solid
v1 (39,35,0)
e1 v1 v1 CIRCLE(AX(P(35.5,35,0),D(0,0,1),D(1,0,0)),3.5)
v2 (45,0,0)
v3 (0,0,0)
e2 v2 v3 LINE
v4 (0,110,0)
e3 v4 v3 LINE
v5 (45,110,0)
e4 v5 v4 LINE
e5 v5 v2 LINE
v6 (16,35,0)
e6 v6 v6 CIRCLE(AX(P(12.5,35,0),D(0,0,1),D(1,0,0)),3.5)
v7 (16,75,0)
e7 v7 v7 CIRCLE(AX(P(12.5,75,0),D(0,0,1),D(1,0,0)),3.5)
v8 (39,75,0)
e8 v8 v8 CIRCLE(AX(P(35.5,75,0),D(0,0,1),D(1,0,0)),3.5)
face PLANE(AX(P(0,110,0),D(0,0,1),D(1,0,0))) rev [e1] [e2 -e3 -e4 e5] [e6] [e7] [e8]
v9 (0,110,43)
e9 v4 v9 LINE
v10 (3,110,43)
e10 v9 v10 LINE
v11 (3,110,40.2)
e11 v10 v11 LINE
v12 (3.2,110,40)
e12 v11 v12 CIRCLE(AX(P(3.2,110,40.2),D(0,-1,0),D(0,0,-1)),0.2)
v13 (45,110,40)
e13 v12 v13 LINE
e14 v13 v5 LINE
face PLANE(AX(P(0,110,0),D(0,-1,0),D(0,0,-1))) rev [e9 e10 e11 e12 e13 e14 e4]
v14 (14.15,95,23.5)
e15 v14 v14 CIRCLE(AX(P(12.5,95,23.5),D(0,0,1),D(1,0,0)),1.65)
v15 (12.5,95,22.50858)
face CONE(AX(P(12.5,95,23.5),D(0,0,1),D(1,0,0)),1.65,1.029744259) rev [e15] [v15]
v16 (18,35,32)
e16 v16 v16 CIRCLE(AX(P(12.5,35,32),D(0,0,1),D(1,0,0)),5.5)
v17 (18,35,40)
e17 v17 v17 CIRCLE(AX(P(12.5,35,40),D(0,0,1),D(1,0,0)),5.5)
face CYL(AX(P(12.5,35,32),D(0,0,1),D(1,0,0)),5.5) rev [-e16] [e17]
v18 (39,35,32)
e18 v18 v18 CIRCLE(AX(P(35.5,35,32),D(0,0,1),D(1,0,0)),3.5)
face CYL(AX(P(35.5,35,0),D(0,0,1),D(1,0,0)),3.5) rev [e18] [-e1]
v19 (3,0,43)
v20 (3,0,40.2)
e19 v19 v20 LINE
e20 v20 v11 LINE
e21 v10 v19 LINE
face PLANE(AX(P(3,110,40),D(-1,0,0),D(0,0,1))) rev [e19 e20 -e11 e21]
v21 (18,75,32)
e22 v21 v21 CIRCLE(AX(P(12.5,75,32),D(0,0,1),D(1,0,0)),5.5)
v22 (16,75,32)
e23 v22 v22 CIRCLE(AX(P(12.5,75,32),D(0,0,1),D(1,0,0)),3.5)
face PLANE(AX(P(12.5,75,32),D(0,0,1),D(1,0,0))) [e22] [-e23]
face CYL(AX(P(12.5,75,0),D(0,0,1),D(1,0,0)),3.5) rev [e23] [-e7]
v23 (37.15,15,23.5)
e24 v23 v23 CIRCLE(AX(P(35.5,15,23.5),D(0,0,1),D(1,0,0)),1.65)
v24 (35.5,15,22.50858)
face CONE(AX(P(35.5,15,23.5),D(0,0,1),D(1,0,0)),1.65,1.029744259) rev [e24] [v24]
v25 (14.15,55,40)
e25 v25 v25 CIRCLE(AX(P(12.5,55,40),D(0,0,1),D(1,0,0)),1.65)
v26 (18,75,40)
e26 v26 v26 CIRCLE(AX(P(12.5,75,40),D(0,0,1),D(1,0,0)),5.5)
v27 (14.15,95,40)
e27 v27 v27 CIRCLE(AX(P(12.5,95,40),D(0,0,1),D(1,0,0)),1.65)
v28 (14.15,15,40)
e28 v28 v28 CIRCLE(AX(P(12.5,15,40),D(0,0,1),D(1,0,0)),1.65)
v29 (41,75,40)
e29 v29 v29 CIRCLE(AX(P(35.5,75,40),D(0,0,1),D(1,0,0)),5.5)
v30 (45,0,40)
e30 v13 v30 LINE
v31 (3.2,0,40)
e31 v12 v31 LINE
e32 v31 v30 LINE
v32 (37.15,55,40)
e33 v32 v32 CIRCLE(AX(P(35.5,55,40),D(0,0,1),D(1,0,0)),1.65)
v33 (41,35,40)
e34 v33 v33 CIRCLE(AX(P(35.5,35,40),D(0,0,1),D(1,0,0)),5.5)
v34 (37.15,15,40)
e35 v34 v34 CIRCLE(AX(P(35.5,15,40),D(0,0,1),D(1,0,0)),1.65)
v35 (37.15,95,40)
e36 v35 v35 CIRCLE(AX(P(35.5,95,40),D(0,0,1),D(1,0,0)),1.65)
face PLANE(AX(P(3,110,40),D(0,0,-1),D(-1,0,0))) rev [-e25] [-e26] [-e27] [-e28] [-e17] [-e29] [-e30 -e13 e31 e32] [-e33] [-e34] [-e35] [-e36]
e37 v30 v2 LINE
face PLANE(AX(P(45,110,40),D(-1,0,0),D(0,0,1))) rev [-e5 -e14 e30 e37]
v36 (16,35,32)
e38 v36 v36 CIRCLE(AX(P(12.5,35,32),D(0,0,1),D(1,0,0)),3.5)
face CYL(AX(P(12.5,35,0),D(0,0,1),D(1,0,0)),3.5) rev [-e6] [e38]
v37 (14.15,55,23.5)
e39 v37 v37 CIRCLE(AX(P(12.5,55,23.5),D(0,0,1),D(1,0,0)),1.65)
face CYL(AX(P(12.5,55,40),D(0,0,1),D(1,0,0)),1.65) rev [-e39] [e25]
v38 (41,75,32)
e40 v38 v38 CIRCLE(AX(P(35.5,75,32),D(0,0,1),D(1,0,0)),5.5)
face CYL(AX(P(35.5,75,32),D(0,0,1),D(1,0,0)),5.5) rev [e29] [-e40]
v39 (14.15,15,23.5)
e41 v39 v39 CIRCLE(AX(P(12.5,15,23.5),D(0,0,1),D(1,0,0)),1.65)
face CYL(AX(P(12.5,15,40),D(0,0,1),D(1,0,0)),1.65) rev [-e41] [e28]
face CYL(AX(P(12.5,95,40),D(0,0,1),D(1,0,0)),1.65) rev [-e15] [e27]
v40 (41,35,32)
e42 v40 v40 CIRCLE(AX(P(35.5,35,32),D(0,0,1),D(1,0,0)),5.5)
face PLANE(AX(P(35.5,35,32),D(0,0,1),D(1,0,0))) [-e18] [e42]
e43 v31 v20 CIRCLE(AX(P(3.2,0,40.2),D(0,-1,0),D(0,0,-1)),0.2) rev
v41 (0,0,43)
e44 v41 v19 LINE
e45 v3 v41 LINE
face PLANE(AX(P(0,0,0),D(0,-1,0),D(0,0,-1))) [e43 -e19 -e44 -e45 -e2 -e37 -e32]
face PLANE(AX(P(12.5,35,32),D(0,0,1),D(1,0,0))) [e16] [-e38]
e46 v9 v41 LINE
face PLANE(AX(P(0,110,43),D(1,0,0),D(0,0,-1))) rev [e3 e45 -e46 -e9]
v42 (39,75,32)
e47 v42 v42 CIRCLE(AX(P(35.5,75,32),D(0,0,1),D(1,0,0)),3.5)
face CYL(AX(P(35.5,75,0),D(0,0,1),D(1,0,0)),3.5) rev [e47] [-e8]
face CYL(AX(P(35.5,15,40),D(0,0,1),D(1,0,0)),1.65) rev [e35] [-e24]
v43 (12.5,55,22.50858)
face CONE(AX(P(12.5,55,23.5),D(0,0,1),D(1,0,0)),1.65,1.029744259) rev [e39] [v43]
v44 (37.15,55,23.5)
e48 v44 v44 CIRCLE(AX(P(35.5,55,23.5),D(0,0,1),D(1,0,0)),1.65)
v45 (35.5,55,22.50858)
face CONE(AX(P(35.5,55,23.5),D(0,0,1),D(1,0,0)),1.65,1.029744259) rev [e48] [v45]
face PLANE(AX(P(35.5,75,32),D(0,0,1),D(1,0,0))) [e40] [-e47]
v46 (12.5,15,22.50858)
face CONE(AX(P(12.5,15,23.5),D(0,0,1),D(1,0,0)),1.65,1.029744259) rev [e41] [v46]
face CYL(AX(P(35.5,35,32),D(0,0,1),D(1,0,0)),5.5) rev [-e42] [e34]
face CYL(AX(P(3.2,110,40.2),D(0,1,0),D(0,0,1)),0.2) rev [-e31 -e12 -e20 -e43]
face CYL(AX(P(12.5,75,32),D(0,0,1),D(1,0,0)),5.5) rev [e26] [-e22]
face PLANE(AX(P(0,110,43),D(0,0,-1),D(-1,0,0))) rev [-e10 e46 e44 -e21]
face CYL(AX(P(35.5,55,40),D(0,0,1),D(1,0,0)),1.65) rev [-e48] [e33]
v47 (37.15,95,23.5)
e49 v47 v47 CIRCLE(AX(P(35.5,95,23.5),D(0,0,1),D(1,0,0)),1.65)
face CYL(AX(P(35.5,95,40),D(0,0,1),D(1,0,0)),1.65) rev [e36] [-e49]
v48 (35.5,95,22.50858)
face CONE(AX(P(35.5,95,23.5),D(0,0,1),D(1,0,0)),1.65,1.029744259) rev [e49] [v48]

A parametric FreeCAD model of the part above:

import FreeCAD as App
import Part
import Sketcher

V = App.Vector


def edges_at(feature, points):
    """Names of the edges that pass closest to the given points."""
    edges = feature.Shape.Edges
    near = lambda p: min(range(len(edges)), key=lambda i: edges[i].distToShape(Part.Vertex(*p))[0])
    return sorted({f"Edge{near(p) + 1}" for p in points})

doc = App.newDocument("Part")
params = doc.addObject("Spreadsheet::Sheet", "Params")
for row, (alias, value) in enumerate([
    ("sketch1_width", "3 mm"),
    ("sketch1_width2", "42 mm"),
    ("sketch1_height", "43 mm"),
    ("pad1_length", "110 mm"),
    ("fillet_radius", "0.2 mm"),
    ("sketch2_diameter", "11 mm"),
    ("pocket1_length", "8 mm"),
    ("sketch3_diameter", "7 mm"),
    ("sketch4_diameter", "3.3 mm"),
    ("hole_diameter", "3.3 mm"),
    ("hole_depth", "16.5 mm"),
], start=1):
    params.set(f"A{row}", alias)
    params.set(f"B{row}", "=" + value)
    params.setAlias(f"B{row}", alias)

body = doc.addObject("PartDesign::Body", "Body")

# Sketch on XZ plane
sketch1 = body.newObject("Sketcher::SketchObject", "Sketch")
sketch1.AttachmentSupport = (doc.getObject("XZ_Plane"), [""])
sketch1.MapMode = "FlatFace"
sketch1.addGeometry(Part.LineSegment(V(0, 0, 0), V(0, 43, 0)), False)
sketch1.addGeometry(Part.LineSegment(V(0, 43, 0), V(3, 43, 0)), False)
sketch1.addGeometry(Part.LineSegment(V(3, 43, 0), V(3, 40, 0)), False)
sketch1.addGeometry(Part.LineSegment(V(3, 40, 0), V(45, 40, 0)), False)
sketch1.addGeometry(Part.LineSegment(V(45, 40, 0), V(45, 0, 0)), False)
sketch1.addGeometry(Part.LineSegment(V(45, 0, 0), V(0, 0, 0)), False)
sketch1.addConstraint(Sketcher.Constraint("Coincident", 0, 2, 1, 1))
sketch1.addConstraint(Sketcher.Constraint("Coincident", 1, 2, 2, 1))
sketch1.addConstraint(Sketcher.Constraint("Coincident", 2, 2, 3, 1))
sketch1.addConstraint(Sketcher.Constraint("Coincident", 3, 2, 4, 1))
sketch1.addConstraint(Sketcher.Constraint("Coincident", 4, 2, 5, 1))
sketch1.addConstraint(Sketcher.Constraint("Coincident", 5, 2, 0, 1))
sketch1.addConstraint(Sketcher.Constraint("Vertical", 0))
sketch1.addConstraint(Sketcher.Constraint("Horizontal", 1))
sketch1.addConstraint(Sketcher.Constraint("Vertical", 2))
sketch1.addConstraint(Sketcher.Constraint("Horizontal", 3))
sketch1.addConstraint(Sketcher.Constraint("Vertical", 4))
sketch1.addConstraint(Sketcher.Constraint("Horizontal", 5))
sketch1.addConstraint(Sketcher.Constraint("Coincident", 5, 2, -1, 1))
sketch1.addConstraint(Sketcher.Constraint("Equal", 1, 2))
sketch1.addConstraint(Sketcher.Constraint("DistanceX", 1, 1, 1, 2, 3.0))
sketch1.addConstraint(Sketcher.Constraint("DistanceX", 3, 1, 3, 2, 42.0))
sketch1.addConstraint(Sketcher.Constraint("DistanceY", 0, 1, 0, 2, 43.0))
sketch1.setExpression("Constraints[14]", "Params.sketch1_width")
sketch1.setExpression("Constraints[15]", "Params.sketch1_width2")
sketch1.setExpression("Constraints[16]", "Params.sketch1_height")
pad1 = body.newObject("PartDesign::Pad", "Pad")
pad1.Profile = sketch1
pad1.setExpression("Length", "Params.pad1_length")
pad1.Reversed = True
doc.recompute()

fillet = body.newObject("PartDesign::Fillet", "Fillet")
fillet.Base = (pad1, edges_at(pad1, [(3, 55, 40)]))
fillet.setExpression("Radius", "Params.fillet_radius")

# Sketch on XY plane
sketch2 = body.newObject("Sketcher::SketchObject", "Sketch001")
sketch2.AttachmentSupport = (doc.getObject("XY_Plane"), [""])
sketch2.MapMode = "FlatFace"
sketch2.AttachmentOffset = App.Placement(V(0, 0, 40), App.Rotation())
sketch2.addGeometry(Part.Circle(V(12.5, 75, 0), V(0, 0, 1), 5.5), False)
sketch2.addGeometry(Part.Circle(V(35.5, 75, 0), V(0, 0, 1), 5.5), False)
sketch2.addGeometry(Part.Circle(V(12.5, 35, 0), V(0, 0, 1), 5.5), False)
sketch2.addGeometry(Part.Circle(V(35.5, 35, 0), V(0, 0, 1), 5.5), False)
sketch2.addConstraint(Sketcher.Constraint("Equal", 0, 1))
sketch2.addConstraint(Sketcher.Constraint("Equal", 1, 2))
sketch2.addConstraint(Sketcher.Constraint("Equal", 2, 3))
sketch2.addConstraint(Sketcher.Constraint("Horizontal", 0, 3, 1, 3))
sketch2.addConstraint(Sketcher.Constraint("Horizontal", 2, 3, 3, 3))
sketch2.addConstraint(Sketcher.Constraint("Vertical", 0, 3, 2, 3))
sketch2.addConstraint(Sketcher.Constraint("Vertical", 1, 3, 3, 3))
sketch2.addConstraint(Sketcher.Constraint("Diameter", 0, 11.0))
sketch2.addConstraint(Sketcher.Constraint("DistanceY", -1, 1, 0, 3, 75.0))
sketch2.addConstraint(Sketcher.Constraint("DistanceY", -1, 1, 2, 3, 35.0))
sketch2.addConstraint(Sketcher.Constraint("DistanceX", 0, 3, 1, 3, 23.0))
sketch2.addConstraint(Sketcher.Constraint("DistanceX", -1, 1, 0, 3, 12.5))
sketch2.setExpression("Constraints[7]", "Params.sketch2_diameter")
pocket1 = body.newObject("PartDesign::Pocket", "Pocket")
pocket1.Profile = sketch2
pocket1.setExpression("Length", "Params.pocket1_length")

# Sketch on XY plane
sketch3 = body.newObject("Sketcher::SketchObject", "Sketch002")
sketch3.AttachmentSupport = (doc.getObject("XY_Plane"), [""])
sketch3.MapMode = "FlatFace"
sketch3.AttachmentOffset = App.Placement(V(0, 0, 32), App.Rotation())
sketch3.addGeometry(Part.Circle(V(12.5, 75, 0), V(0, 0, 1), 3.5), False)
sketch3.addGeometry(Part.Circle(V(35.5, 75, 0), V(0, 0, 1), 3.5), False)
sketch3.addGeometry(Part.Circle(V(35.5, 35, 0), V(0, 0, 1), 3.5), False)
sketch3.addGeometry(Part.Circle(V(12.5, 35, 0), V(0, 0, 1), 3.5), False)
sketch3.addConstraint(Sketcher.Constraint("Equal", 0, 1))
sketch3.addConstraint(Sketcher.Constraint("Equal", 1, 2))
sketch3.addConstraint(Sketcher.Constraint("Equal", 2, 3))
sketch3.addConstraint(Sketcher.Constraint("Horizontal", 0, 3, 1, 3))
sketch3.addConstraint(Sketcher.Constraint("Horizontal", 2, 3, 3, 3))
sketch3.addConstraint(Sketcher.Constraint("Vertical", 1, 3, 2, 3))
sketch3.addConstraint(Sketcher.Constraint("Vertical", 0, 3, 3, 3))
sketch3.addConstraint(Sketcher.Constraint("Diameter", 0, 7.0))
sketch3.addConstraint(Sketcher.Constraint("DistanceY", -1, 1, 0, 3, 75.0))
sketch3.addConstraint(Sketcher.Constraint("DistanceY", -1, 1, 2, 3, 35.0))
sketch3.addConstraint(Sketcher.Constraint("DistanceX", 0, 3, 1, 3, 23.0))
sketch3.addConstraint(Sketcher.Constraint("DistanceX", -1, 1, 0, 3, 12.5))
sketch3.setExpression("Constraints[7]", "Params.sketch3_diameter")
pocket2 = body.newObject("PartDesign::Pocket", "Pocket001")
pocket2.Profile = sketch3
pocket2.Type = "ThroughAll"

# Sketch on XY plane
sketch4 = body.newObject("Sketcher::SketchObject", "Sketch003")
sketch4.AttachmentSupport = (doc.getObject("XY_Plane"), [""])
sketch4.MapMode = "FlatFace"
sketch4.AttachmentOffset = App.Placement(V(0, 0, 40), App.Rotation())
sketch4.addGeometry(Part.Circle(V(12.5, 95, 0), V(0, 0, 1), 1.65), False)
sketch4.addGeometry(Part.Circle(V(12.5, 15, 0), V(0, 0, 1), 1.65), False)
sketch4.addGeometry(Part.Circle(V(12.5, 55, 0), V(0, 0, 1), 1.65), False)
sketch4.addGeometry(Part.Circle(V(35.5, 55, 0), V(0, 0, 1), 1.65), False)
sketch4.addGeometry(Part.Circle(V(35.5, 95, 0), V(0, 0, 1), 1.65), False)
sketch4.addGeometry(Part.Circle(V(35.5, 15, 0), V(0, 0, 1), 1.65), False)
sketch4.addConstraint(Sketcher.Constraint("Equal", 0, 1))
sketch4.addConstraint(Sketcher.Constraint("Equal", 1, 2))
sketch4.addConstraint(Sketcher.Constraint("Equal", 2, 3))
sketch4.addConstraint(Sketcher.Constraint("Equal", 3, 4))
sketch4.addConstraint(Sketcher.Constraint("Equal", 4, 5))
sketch4.addConstraint(Sketcher.Constraint("Horizontal", 2, 3, 3, 3))
sketch4.addConstraint(Sketcher.Constraint("Horizontal", 0, 3, 4, 3))
sketch4.addConstraint(Sketcher.Constraint("Horizontal", 1, 3, 5, 3))
sketch4.addConstraint(Sketcher.Constraint("Vertical", 0, 3, 1, 3))
sketch4.addConstraint(Sketcher.Constraint("Vertical", 1, 3, 2, 3))
sketch4.addConstraint(Sketcher.Constraint("Vertical", 3, 3, 4, 3))
sketch4.addConstraint(Sketcher.Constraint("Vertical", 4, 3, 5, 3))
sketch4.addConstraint(Sketcher.Constraint("Diameter", 0, 3.3))
sketch4.addConstraint(Sketcher.Constraint("DistanceY", -1, 1, 0, 3, 95.0))
sketch4.addConstraint(Sketcher.Constraint("DistanceY", -1, 1, 1, 3, 15.0))
sketch4.addConstraint(Sketcher.Constraint("DistanceY", -1, 1, 2, 3, 55.0))
sketch4.addConstraint(Sketcher.Constraint("DistanceX", 2, 3, 3, 3, 23.0))
sketch4.addConstraint(Sketcher.Constraint("DistanceX", -1, 1, 0, 3, 12.5))
sketch4.setExpression("Constraints[12]", "Params.sketch4_diameter")
doc.recompute()
hole = body.newObject("PartDesign::Hole", "Hole")
hole.Profile = sketch4
hole.ThreadType = "None"
hole.setExpression("Diameter", "Params.hole_diameter")
hole.DepthType = "Dimension"
hole.setExpression("Depth", "Params.hole_depth")
hole.DrillPoint = "Angled"
hole.DrillPointAngle = 118

doc.recompute()
